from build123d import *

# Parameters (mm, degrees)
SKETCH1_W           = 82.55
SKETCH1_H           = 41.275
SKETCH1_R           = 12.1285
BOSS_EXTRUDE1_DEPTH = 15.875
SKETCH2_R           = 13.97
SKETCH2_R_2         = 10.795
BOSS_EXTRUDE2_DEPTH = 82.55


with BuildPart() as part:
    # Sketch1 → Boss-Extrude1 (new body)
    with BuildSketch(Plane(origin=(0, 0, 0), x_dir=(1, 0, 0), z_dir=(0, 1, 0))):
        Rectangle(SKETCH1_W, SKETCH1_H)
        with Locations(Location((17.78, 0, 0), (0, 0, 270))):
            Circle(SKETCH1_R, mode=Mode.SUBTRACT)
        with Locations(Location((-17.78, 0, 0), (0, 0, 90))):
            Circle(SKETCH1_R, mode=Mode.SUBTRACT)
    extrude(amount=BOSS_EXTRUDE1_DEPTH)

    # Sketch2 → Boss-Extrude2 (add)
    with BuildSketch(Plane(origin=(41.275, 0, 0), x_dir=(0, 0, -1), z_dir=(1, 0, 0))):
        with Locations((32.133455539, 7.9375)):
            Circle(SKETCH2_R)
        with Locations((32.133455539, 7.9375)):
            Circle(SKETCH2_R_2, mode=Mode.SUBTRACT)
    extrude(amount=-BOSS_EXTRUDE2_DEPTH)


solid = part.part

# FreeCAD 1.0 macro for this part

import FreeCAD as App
import Part
import Sketcher

V = App.Vector
Q = App.Units.Quantity

doc = App.newDocument("Part")
body = doc.addObject("PartDesign::Body", "Body")

# Sketch on XZ plane
sketch1 = body.newObject("Sketcher::SketchObject", "Sketch")
sketch1.AttachmentSupport = (doc.getObject("XZ_Plane"), [""])
sketch1.MapMode = "FlatFace"
sketch1.addGeometry([
    Part.LineSegment(V(-41, -21, 0), V(-41, 21, 0)),  # 0
    Part.LineSegment(V(-41, 21, 0), V(41, 21, 0)),  # 1
    Part.LineSegment(V(41, 21, 0), V(41, -21, 0)),  # 2
    Part.LineSegment(V(41, -21, 0), V(-41, -21, 0)),  # 3
    Part.Circle(V(-18, 0, 0), V(0, 0, 1), 12),  # 4
    Part.Circle(V(18, 0, 0), V(0, 0, 1), 12),  # 5
], False)
sketch1.addConstraint([
    Sketcher.Constraint("Coincident", 0, 2, 1, 1),
    Sketcher.Constraint("Coincident", 1, 2, 2, 1),
    Sketcher.Constraint("Coincident", 2, 2, 3, 1),
    Sketcher.Constraint("Coincident", 3, 2, 0, 1),
    Sketcher.Constraint("Vertical", 0),
    Sketcher.Constraint("Horizontal", 1),
    Sketcher.Constraint("Vertical", 2),
    Sketcher.Constraint("Horizontal", 3),
    Sketcher.Constraint("Equal", 4, 5),
    Sketcher.Constraint("Symmetric", 4, 3, 5, 3, -1, 1),
    Sketcher.Constraint("Symmetric", 0, 2, 2, 2, -1, 1),
    Sketcher.Constraint("PointOnObject", 4, 3, -1),
    Sketcher.Constraint("Diameter", 4, Q("0.955 in")),
    Sketcher.Constraint("DistanceX", 1, 1, 1, 2, Q("3.25 in")),
    Sketcher.Constraint("DistanceX", 4, 3, -1, 1, Q("0.7 in")),
    Sketcher.Constraint("DistanceY", 0, 1, 0, 2, Q("1.625 in")),
])
pad1 = body.newObject("PartDesign::Pad", "Pad")
pad1.Profile = sketch1
pad1.Length = Q("0.625 in")
pad1.Reversed = True

# Sketch on YZ plane
sketch2 = body.newObject("Sketcher::SketchObject", "Sketch001")
sketch2.AttachmentSupport = (doc.getObject("YZ_Plane"), [""])
sketch2.MapMode = "FlatFace"
sketch2.AttachmentOffset = App.Placement(V(0, 0, 1.625 * 25.4), App.Rotation())
sketch2.addGeometry([
    Part.Circle(V(8, -32, 0), V(0, 0, 1), 14),
    Part.Circle(V(8, -32, 0), V(0, 0, 1), 11),
], False)
sketch2.addConstraint([
    Sketcher.Constraint("Coincident", 1, 3, 0, 3),
    Sketcher.Constraint("Diameter", 0, Q("1.1 in")),
    Sketcher.Constraint("Diameter", 1, Q("0.85 in")),
    Sketcher.Constraint("DistanceX", -1, 1, 0, 3, Q("0.3125 in")),
    Sketcher.Constraint("DistanceY", 0, 3, -1, 1, 32.133456),
])
pad2 = body.newObject("PartDesign::Pad", "Pad001")
pad2.Profile = sketch2
pad2.Length = Q("3.25 in")
pad2.Reversed = True

doc.recompute()
